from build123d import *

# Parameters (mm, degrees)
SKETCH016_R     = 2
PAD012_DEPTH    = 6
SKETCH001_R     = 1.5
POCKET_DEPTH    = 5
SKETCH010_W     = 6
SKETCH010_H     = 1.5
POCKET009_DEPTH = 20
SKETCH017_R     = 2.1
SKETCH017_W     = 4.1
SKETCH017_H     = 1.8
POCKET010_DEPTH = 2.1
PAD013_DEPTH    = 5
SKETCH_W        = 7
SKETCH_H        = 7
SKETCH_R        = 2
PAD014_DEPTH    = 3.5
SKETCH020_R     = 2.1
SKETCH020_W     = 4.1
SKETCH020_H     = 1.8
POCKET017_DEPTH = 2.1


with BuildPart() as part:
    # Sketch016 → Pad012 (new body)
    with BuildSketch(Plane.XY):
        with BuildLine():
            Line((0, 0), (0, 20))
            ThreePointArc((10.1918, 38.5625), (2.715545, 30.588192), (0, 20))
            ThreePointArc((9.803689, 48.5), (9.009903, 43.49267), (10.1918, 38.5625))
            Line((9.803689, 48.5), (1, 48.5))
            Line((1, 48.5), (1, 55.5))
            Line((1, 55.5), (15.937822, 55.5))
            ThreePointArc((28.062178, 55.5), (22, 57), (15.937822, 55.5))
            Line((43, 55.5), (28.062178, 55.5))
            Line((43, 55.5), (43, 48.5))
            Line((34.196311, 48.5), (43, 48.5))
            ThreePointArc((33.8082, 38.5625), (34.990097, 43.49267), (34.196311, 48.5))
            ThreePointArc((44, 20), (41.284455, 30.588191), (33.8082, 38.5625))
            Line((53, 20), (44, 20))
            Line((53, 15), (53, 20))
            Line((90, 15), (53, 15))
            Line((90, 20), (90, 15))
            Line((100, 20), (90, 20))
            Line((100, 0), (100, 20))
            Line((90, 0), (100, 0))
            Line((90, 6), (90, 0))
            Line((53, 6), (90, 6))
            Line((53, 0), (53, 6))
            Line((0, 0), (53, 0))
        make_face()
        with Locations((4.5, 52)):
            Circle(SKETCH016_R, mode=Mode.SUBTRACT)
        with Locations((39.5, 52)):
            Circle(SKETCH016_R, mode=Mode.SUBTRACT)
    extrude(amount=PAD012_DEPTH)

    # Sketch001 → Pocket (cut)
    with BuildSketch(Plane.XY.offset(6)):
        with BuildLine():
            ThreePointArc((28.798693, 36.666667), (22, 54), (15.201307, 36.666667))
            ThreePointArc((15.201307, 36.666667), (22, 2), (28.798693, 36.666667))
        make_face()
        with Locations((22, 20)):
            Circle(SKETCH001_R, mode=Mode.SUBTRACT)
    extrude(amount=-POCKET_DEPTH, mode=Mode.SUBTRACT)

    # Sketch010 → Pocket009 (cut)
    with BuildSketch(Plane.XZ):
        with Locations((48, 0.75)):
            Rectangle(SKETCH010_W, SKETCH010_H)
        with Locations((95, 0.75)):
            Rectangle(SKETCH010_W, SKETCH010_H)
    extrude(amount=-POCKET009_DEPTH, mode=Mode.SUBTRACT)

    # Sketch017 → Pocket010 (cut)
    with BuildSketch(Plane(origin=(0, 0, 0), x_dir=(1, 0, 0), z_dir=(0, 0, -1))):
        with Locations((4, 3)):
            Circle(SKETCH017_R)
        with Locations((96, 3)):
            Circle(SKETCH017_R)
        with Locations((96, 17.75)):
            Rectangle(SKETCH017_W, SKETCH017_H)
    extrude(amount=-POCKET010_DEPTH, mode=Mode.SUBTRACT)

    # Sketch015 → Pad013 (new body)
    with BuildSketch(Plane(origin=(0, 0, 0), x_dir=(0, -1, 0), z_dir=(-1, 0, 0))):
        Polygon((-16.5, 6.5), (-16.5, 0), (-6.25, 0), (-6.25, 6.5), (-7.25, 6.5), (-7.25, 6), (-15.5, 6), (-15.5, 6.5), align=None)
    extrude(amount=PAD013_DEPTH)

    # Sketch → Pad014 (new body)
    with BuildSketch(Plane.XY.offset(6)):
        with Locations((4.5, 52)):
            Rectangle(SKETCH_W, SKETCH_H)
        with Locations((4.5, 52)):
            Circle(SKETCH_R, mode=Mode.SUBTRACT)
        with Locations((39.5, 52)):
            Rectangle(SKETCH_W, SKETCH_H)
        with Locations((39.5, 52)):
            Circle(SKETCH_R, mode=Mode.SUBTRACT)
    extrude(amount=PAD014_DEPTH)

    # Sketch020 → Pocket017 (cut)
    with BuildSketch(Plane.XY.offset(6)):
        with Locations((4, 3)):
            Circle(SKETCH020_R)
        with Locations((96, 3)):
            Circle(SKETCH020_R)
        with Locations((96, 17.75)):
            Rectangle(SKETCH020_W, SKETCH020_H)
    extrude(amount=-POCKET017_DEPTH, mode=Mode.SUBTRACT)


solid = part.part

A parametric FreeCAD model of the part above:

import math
import FreeCAD as App
import Part
import Sketcher

V = App.Vector
Q = App.Units.Quantity

doc = App.newDocument("Part")
body = doc.addObject("PartDesign::Body", "Body")

# Sketch on XY plane
sketch1 = doc.addObject("Sketcher::SketchObject", "Sketch")
body.addObject(sketch1)
sketch1.AttachmentSupport = (doc.XY_Plane, [""])
sketch1.MapMode = "FlatFace"
sketch1.addGeometry([
    Part.LineSegment(V(0, 20, 0), V(0, 0, 0)),  # 0
    Part.LineSegment(V(0, 0, 0), V(53, 0, 0)),  # 1
    Part.LineSegment(V(53, 0, 0), V(53, 6, 0)),  # 2
    Part.LineSegment(V(53, 6, 0), V(90, 6, 0)),  # 3
    Part.LineSegment(V(90, 6, 0), V(90, 0, 0)),  # 4
    Part.LineSegment(V(90, 0, 0), V(100, 0, 0)),  # 5
    Part.LineSegment(V(100, 0, 0), V(100, 20, 0)),  # 6
    Part.LineSegment(V(100, 20, 0), V(90, 20, 0)),  # 7
    Part.LineSegment(V(90, 20, 0), V(90, 15, 0)),  # 8
    Part.LineSegment(V(90, 15, 0), V(53, 15, 0)),  # 9
    Part.LineSegment(V(53, 15, 0), V(53, 20, 0)),  # 10
    Part.LineSegment(V(53, 20, 0), V(44, 20, 0)),  # 11
    Part.ArcOfCircle(Part.Circle(V(22, 20, 0), V(0, 0, 1), 22), math.radians(0.000001), math.radians(57.538255)),  # 12
    Part.ArcOfCircle(Part.Circle(V(22.000003, 44, 0), V(0, 0, 1), 12.999997), math.radians(-24.725372), math.radians(20.25225)),  # 13
    Part.LineSegment(V(34.196311, 48.5, 0), V(43, 48.5, 0)),  # 14
    Part.LineSegment(V(43, 48.5, 0), V(43, 55.5, 0)),  # 15
    Part.LineSegment(V(43, 55.5, 0), V(28.062178, 55.5, 0)),  # 16
    Part.ArcOfCircle(Part.Circle(V(22, 43.999999, 0), V(0, 0, 1), 13.000001), math.radians(62.204228), math.radians(117.795772)),  # 17
    Part.LineSegment(V(15.937822, 55.5, 0), V(1, 55.5, 0)),  # 18
    Part.LineSegment(V(1, 55.5, 0), V(1, 48.5, 0)),  # 19
    Part.LineSegment(V(1, 48.5, 0), V(9.803689, 48.5, 0)),  # 20
    Part.ArcOfCircle(Part.Circle(V(21.999997, 44, 0), V(0, 0, 1), 12.999997), math.radians(159.74775), math.radians(204.725372)),  # 21
    Part.ArcOfCircle(Part.Circle(V(21.999997, 20.000001, 0), V(0, 0, 1), 21.999997), math.radians(122.46174), math.radians(180.000004)),  # 22
    Part.Circle(V(39.5, 52, 0), V(0, 0, 1), 2),  # 23
    Part.Circle(V(4.5, 52, 0), V(0, 0, 1), 2),  # 24
], False)
sketch1.addConstraint([
    Sketcher.Constraint("Coincident", 0, 2, 1, 1),
    Sketcher.Constraint("Coincident", 1, 2, 2, 1),
    Sketcher.Constraint("Coincident", 2, 2, 3, 1),
    Sketcher.Constraint("Coincident", 3, 2, 4, 1),
    Sketcher.Constraint("Coincident", 4, 2, 5, 1),
    Sketcher.Constraint("Coincident", 5, 2, 6, 1),
    Sketcher.Constraint("Coincident", 6, 2, 7, 1),
    Sketcher.Constraint("Coincident", 7, 2, 8, 1),
    Sketcher.Constraint("Coincident", 8, 2, 9, 1),
    Sketcher.Constraint("Coincident", 9, 2, 10, 1),
    Sketcher.Constraint("Coincident", 10, 2, 11, 1),
    Sketcher.Constraint("Coincident", 11, 2, 12, 1),
    Sketcher.Constraint("Coincident", 12, 2, 13, 1),
    Sketcher.Constraint("Coincident", 13, 2, 14, 1),
    Sketcher.Constraint("Coincident", 14, 2, 15, 1),
    Sketcher.Constraint("Coincident", 15, 2, 16, 1),
    Sketcher.Constraint("Coincident", 16, 2, 17, 1),
    Sketcher.Constraint("Coincident", 17, 2, 18, 1),
    Sketcher.Constraint("Coincident", 18, 2, 19, 1),
    Sketcher.Constraint("Coincident", 19, 2, 20, 1),
    Sketcher.Constraint("Coincident", 20, 2, 21, 1),
    Sketcher.Constraint("Coincident", 21, 2, 22, 1),
    Sketcher.Constraint("Tangent", 22, 2, 0, 1),
    Sketcher.Constraint("Vertical", 0),
    Sketcher.Constraint("Horizontal", 1),
    Sketcher.Constraint("Vertical", 2),
    Sketcher.Constraint("Horizontal", 3),
    Sketcher.Constraint("Vertical", 4),
    Sketcher.Constraint("Horizontal", 5),
    Sketcher.Constraint("Vertical", 6),
    Sketcher.Constraint("Horizontal", 7),
    Sketcher.Constraint("Vertical", 8),
    Sketcher.Constraint("Horizontal", 9),
    Sketcher.Constraint("Vertical", 10),
    Sketcher.Constraint("Horizontal", 11),
    Sketcher.Constraint("Horizontal", 14),
    Sketcher.Constraint("Vertical", 15),
    Sketcher.Constraint("Horizontal", 16),
    Sketcher.Constraint("Horizontal", 18),
    Sketcher.Constraint("Vertical", 19),
    Sketcher.Constraint("Horizontal", 20),
    Sketcher.Constraint("Coincident", 0, 2, -1, 1),
    Sketcher.Constraint("Coincident", 17, 3, 13, 3),
    Sketcher.Constraint("Coincident", 21, 3, 13, 3),
    Sketcher.Constraint("Coincident", 22, 3, 12, 3),
    Sketcher.Constraint("Equal", 13, 21),
    Sketcher.Constraint("Equal", 23, 24),
    Sketcher.Constraint("PointOnObject", 4, 2, -1),
    Sketcher.Constraint("Horizontal", 23, 3, 24, 3),
    Sketcher.Constraint("Horizontal", 22, 3, 6, 2),
    Sketcher.Constraint("Horizontal", 7, 2, 10, 2),
    Sketcher.Constraint("Horizontal", 16, 2, 17, 2),
    Sketcher.Constraint("Horizontal", 14, 2, 19, 2),
    Sketcher.Constraint("Horizontal", 12, 2, 21, 2),
    Sketcher.Constraint("Vertical", 12, 3, 17, 3),
    Sketcher.Constraint("Vertical", 4, 2, 7, 2),
    Sketcher.Constraint("Vertical", 2, 2, 9, 2),
    Sketcher.Constraint("Equal", 16, 18),
    Sketcher.Constraint("Diameter", 23, Q("4 mm")),
    Sketcher.Constraint("Radius", 12, Q("22 mm")),
    Sketcher.Constraint("Radius", 17, Q("13.000001 mm")),
    Sketcher.Constraint("DistanceX", 1, 1, 1, 2, Q("53 mm")),
    Sketcher.Constraint("DistanceX", 3, 1, 3, 2, Q("37 mm")),
    Sketcher.Constraint("DistanceX", 5, 1, 5, 2, Q("10 mm")),
    Sketcher.Constraint("DistanceY", 0, 2, 0, 1, Q("20 mm")),
    Sketcher.Constraint("DistanceY", 2, 1, 2, 2, Q("6 mm")),
    Sketcher.Constraint("DistanceY", 8, 2, 8, 1, Q("5 mm")),
    Sketcher.Constraint("DistanceY", 15, 1, 15, 2, Q("7 mm")),
    Sketcher.Constraint("DistanceY", -1, 1, 13, 3, Q("44 mm")),
    Sketcher.Constraint("DistanceY", -1, 1, 23, 3, Q("52 mm")),
    Sketcher.Constraint("DistanceX", -1, 1, 14, 2, Q("43 mm")),
    Sketcher.Constraint("DistanceX", 24, 3, 23, 3, Q("35 mm")),
    Sketcher.Constraint("DistanceX", -1, 1, 23, 3, Q("39.5 mm")),
    Sketcher.Constraint("DistanceY", -1, 1, 13, 2, Q("48.5 mm")),
    Sketcher.Constraint("Radius", 13, Q("12.999997 mm")),
])
pad1 = doc.addObject("PartDesign::Pad", "Pad")
body.addObject(pad1)
pad1.Profile = sketch1
pad1.Length = 6

# Sketch on XY plane
sketch2 = doc.addObject("Sketcher::SketchObject", "Sketch001")
body.addObject(sketch2)
sketch2.AttachmentSupport = (doc.XY_Plane, [""])
sketch2.MapMode = "FlatFace"
sketch2.AttachmentOffset = App.Placement(V(0, 0, 6), App.Rotation())
sketch2.addGeometry([
    Part.ArcOfCircle(Part.Circle(V(22, 44, 0), V(0, 0, 1), 10), math.radians(-47.166569), math.radians(227.166569)),
    Part.ArcOfCircle(Part.Circle(V(22, 20, 0), V(0, 0, 1), 18), math.radians(112.191607), math.radians(427.808393)),
    Part.Circle(V(22, 20, 0), V(0, 0, 1), 1.5),
], False)
sketch2.addConstraint([
    Sketcher.Constraint("Coincident", 0, 1, 1, 2),
    Sketcher.Constraint("Coincident", 1, 1, 0, 2),
    Sketcher.Constraint("Coincident", 2, 3, 1, 3),
    Sketcher.Constraint("Horizontal", 0, 1, 1, 1),
    Sketcher.Constraint("Diameter", 2, Q("3 mm")),
    Sketcher.Constraint("Radius", 0, Q("10 mm")),
    Sketcher.Constraint("Radius", 1, Q("18 mm")),
    Sketcher.Constraint("DistanceX", -1, 1, 0, 3, Q("22 mm")),
    Sketcher.Constraint("DistanceY", -1, 1, 0, 3, Q("44 mm")),
    Sketcher.Constraint("DistanceY", -1, 1, 1, 3, Q("20 mm")),
])
pocket1 = doc.addObject("PartDesign::Pocket", "Pocket")
body.addObject(pocket1)
pocket1.Profile = sketch2
pocket1.Length = 5

# Sketch on XZ plane
sketch3 = doc.addObject("Sketcher::SketchObject", "Sketch002")
body.addObject(sketch3)
sketch3.AttachmentSupport = (doc.XZ_Plane, [""])
sketch3.MapMode = "FlatFace"
sketch3.addGeometry([
    Part.LineSegment(V(45, 1.5, 0), V(45, 0, 0)),  # 0
    Part.LineSegment(V(45, 0, 0), V(51, 0, 0)),  # 1
    Part.LineSegment(V(51, 0, 0), V(51, 1.5, 0)),  # 2
    Part.LineSegment(V(51, 1.5, 0), V(45, 1.5, 0)),  # 3
    Part.LineSegment(V(92, 1.5, 0), V(92, 0, 0)),  # 4
    Part.LineSegment(V(92, 0, 0), V(98, 0, 0)),  # 5
    Part.LineSegment(V(98, 0, 0), V(98, 1.5, 0)),  # 6
    Part.LineSegment(V(98, 1.5, 0), V(92, 1.5, 0)),  # 7
], False)
sketch3.addConstraint([
    Sketcher.Constraint("Coincident", 0, 2, 1, 1),
    Sketcher.Constraint("Coincident", 1, 2, 2, 1),
    Sketcher.Constraint("Coincident", 2, 2, 3, 1),
    Sketcher.Constraint("Coincident", 3, 2, 0, 1),
    Sketcher.Constraint("Coincident", 4, 2, 5, 1),
    Sketcher.Constraint("Coincident", 5, 2, 6, 1),
    Sketcher.Constraint("Coincident", 6, 2, 7, 1),
    Sketcher.Constraint("Coincident", 7, 2, 4, 1),
    Sketcher.Constraint("Vertical", 0),
    Sketcher.Constraint("Horizontal", 1),
    Sketcher.Constraint("Vertical", 2),
    Sketcher.Constraint("Horizontal", 3),
    Sketcher.Constraint("Vertical", 4),
    Sketcher.Constraint("Horizontal", 5),
    Sketcher.Constraint("Vertical", 6),
    Sketcher.Constraint("Horizontal", 7),
    Sketcher.Constraint("PointOnObject", 0, 2, -1),
    Sketcher.Constraint("PointOnObject", 4, 2, -1),
    Sketcher.Constraint("Horizontal", 3, 2, 6, 2),
    Sketcher.Constraint("Equal", 3, 5),
    Sketcher.Constraint("DistanceX", 1, 1, 1, 2, Q("6 mm")),
    Sketcher.Constraint("DistanceY", 0, 2, 0, 1, Q("1.5 mm")),
    Sketcher.Constraint("DistanceX", -1, 1, 0, 2, Q("45 mm")),
    Sketcher.Constraint("DistanceX", -1, 1, 4, 2, Q("92 mm")),
])
pocket2 = doc.addObject("PartDesign::Pocket", "Pocket001")
body.addObject(pocket2)
pocket2.Profile = sketch3
pocket2.Length = 20

# Sketch on XY plane
sketch4 = doc.addObject("Sketcher::SketchObject", "Sketch003")
body.addObject(sketch4)
sketch4.AttachmentSupport = (doc.XY_Plane, [""])
sketch4.MapMode = "FlatFace"
sketch4.addGeometry([
    Part.Circle(V(4, -3, 0), V(0, 0, 1), 2.1),  # 0
    Part.Circle(V(96, -3, 0), V(0, 0, 1), 2.1),  # 1
    Part.LineSegment(V(93.95, -18.65, 0), V(93.95, -16.85, 0)),  # 2
    Part.LineSegment(V(93.95, -16.85, 0), V(98.05, -16.85, 0)),  # 3
    Part.LineSegment(V(98.05, -16.85, 0), V(98.05, -18.65, 0)),  # 4
    Part.LineSegment(V(98.05, -18.65, 0), V(93.95, -18.65, 0)),  # 5
], False)
sketch4.addConstraint([
    Sketcher.Constraint("Coincident", 2, 2, 3, 1),
    Sketcher.Constraint("Coincident", 3, 2, 4, 1),
    Sketcher.Constraint("Coincident", 4, 2, 5, 1),
    Sketcher.Constraint("Coincident", 5, 2, 2, 1),
    Sketcher.Constraint("Vertical", 2),
    Sketcher.Constraint("Horizontal", 3),
    Sketcher.Constraint("Vertical", 4),
    Sketcher.Constraint("Horizontal", 5),
    Sketcher.Constraint("Equal", 0, 1),
    Sketcher.Constraint("Horizontal", 0, 3, 1, 3),
    Sketcher.Constraint("Diameter", 0, Q("4.2 mm")),
    Sketcher.Constraint("DistanceX", 3, 1, 3, 2, Q("4.1 mm")),
    Sketcher.Constraint("DistanceY", 2, 1, 2, 2, Q("1.8 mm")),
    Sketcher.Constraint("DistanceX", -1, 1, 0, 3, Q("4 mm")),
    Sketcher.Constraint("DistanceY", 0, 3, -1, 1, Q("3 mm")),
    Sketcher.Constraint("DistanceX", -1, 1, 1, 3, Q("96 mm")),
    Sketcher.Constraint("DistanceX", -1, 1, 2, 2, Q("93.95 mm")),
    Sketcher.Constraint("DistanceY", 2, 2, -1, 1, Q("16.85 mm")),
])
pocket3 = doc.addObject("PartDesign::Pocket", "Pocket002")
body.addObject(pocket3)
pocket3.Profile = sketch4
pocket3.Length = 2.1
pocket3.Reversed = True

# Sketch on YZ plane
sketch5 = doc.addObject("Sketcher::SketchObject", "Sketch004")
body.addObject(sketch5)
sketch5.AttachmentSupport = (doc.YZ_Plane, [""])
sketch5.MapMode = "FlatFace"
sketch5.addGeometry([
    Part.LineSegment(V(16.5, 6.5, 0), V(16.5, 0, 0)),  # 0
    Part.LineSegment(V(16.5, 0, 0), V(6.25, 0, 0)),  # 1
    Part.LineSegment(V(6.25, 0, 0), V(6.25, 6.5, 0)),  # 2
    Part.LineSegment(V(6.25, 6.5, 0), V(7.25, 6.5, 0)),  # 3
    Part.LineSegment(V(7.25, 6.5, 0), V(7.25, 6, 0)),  # 4
    Part.LineSegment(V(7.25, 6, 0), V(15.5, 6, 0)),  # 5
    Part.LineSegment(V(15.5, 6, 0), V(15.5, 6.5, 0)),  # 6
    Part.LineSegment(V(15.5, 6.5, 0), V(16.5, 6.5, 0)),  # 7
], False)
sketch5.addConstraint([
    Sketcher.Constraint("Coincident", 0, 2, 1, 1),
    Sketcher.Constraint("Coincident", 1, 2, 2, 1),
    Sketcher.Constraint("Coincident", 2, 2, 3, 1),
    Sketcher.Constraint("Coincident", 3, 2, 4, 1),
    Sketcher.Constraint("Coincident", 4, 2, 5, 1),
    Sketcher.Constraint("Coincident", 5, 2, 6, 1),
    Sketcher.Constraint("Coincident", 6, 2, 7, 1),
    Sketcher.Constraint("Coincident", 7, 2, 0, 1),
    Sketcher.Constraint("Vertical", 0),
    Sketcher.Constraint("Horizontal", 1),
    Sketcher.Constraint("Vertical", 2),
    Sketcher.Constraint("Horizontal", 3),
    Sketcher.Constraint("Vertical", 4),
    Sketcher.Constraint("Horizontal", 5),
    Sketcher.Constraint("Vertical", 6),
    Sketcher.Constraint("Horizontal", 7),
    Sketcher.Constraint("PointOnObject", 0, 2, -1),
    Sketcher.Constraint("Horizontal", 3, 2, 6, 2),
    Sketcher.Constraint("Equal", 3, 7),
    Sketcher.Constraint("DistanceX", 3, 1, 3, 2, Q("1 mm")),
    Sketcher.Constraint("DistanceY", 0, 2, 0, 1, Q("6.5 mm")),
    Sketcher.Constraint("DistanceY", 4, 2, 4, 1, Q("0.5 mm")),
    Sketcher.Constraint("DistanceX", 1, 2, 1, 1, Q("10.25 mm")),
    Sketcher.Constraint("DistanceX", -1, 1, 0, 2, Q("16.5 mm")),
])
pad2 = doc.addObject("PartDesign::Pad", "Pad001")
body.addObject(pad2)
pad2.Profile = sketch5
pad2.Length = 5
pad2.Reversed = True

# Sketch on XY plane
sketch6 = doc.addObject("Sketcher::SketchObject", "Sketch005")
body.addObject(sketch6)
sketch6.AttachmentSupport = (doc.XY_Plane, [""])
sketch6.MapMode = "FlatFace"
sketch6.AttachmentOffset = App.Placement(V(0, 0, 6), App.Rotation())
sketch6.addGeometry([
    Part.LineSegment(V(1, 55.5, 0), V(1, 48.5, 0)),  # 0
    Part.LineSegment(V(1, 48.5, 0), V(8, 48.5, 0)),  # 1
    Part.LineSegment(V(8, 48.5, 0), V(8, 55.5, 0)),  # 2
    Part.LineSegment(V(8, 55.5, 0), V(1, 55.5, 0)),  # 3
    Part.Circle(V(4.5, 52, 0), V(0, 0, 1), 2),  # 4
    Part.LineSegment(V(36, 55.5, 0), V(36, 48.5, 0)),  # 5
    Part.LineSegment(V(36, 48.5, 0), V(43, 48.5, 0)),  # 6
    Part.LineSegment(V(43, 48.5, 0), V(43, 55.5, 0)),  # 7
    Part.LineSegment(V(43, 55.5, 0), V(36, 55.5, 0)),  # 8
    Part.Circle(V(39.5, 52, 0), V(0, 0, 1), 2),  # 9
], False)
sketch6.addConstraint([
    Sketcher.Constraint("Coincident", 0, 2, 1, 1),
    Sketcher.Constraint("Coincident", 1, 2, 2, 1),
    Sketcher.Constraint("Coincident", 2, 2, 3, 1),
    Sketcher.Constraint("Coincident", 3, 2, 0, 1),
    Sketcher.Constraint("Coincident", 5, 2, 6, 1),
    Sketcher.Constraint("Coincident", 6, 2, 7, 1),
    Sketcher.Constraint("Coincident", 7, 2, 8, 1),
    Sketcher.Constraint("Coincident", 8, 2, 5, 1),
    Sketcher.Constraint("Vertical", 0),
    Sketcher.Constraint("Horizontal", 1),
    Sketcher.Constraint("Vertical", 2),
    Sketcher.Constraint("Horizontal", 3),
    Sketcher.Constraint("Vertical", 5),
    Sketcher.Constraint("Horizontal", 6),
    Sketcher.Constraint("Vertical", 7),
    Sketcher.Constraint("Horizontal", 8),
    Sketcher.Constraint("Equal", 4, 9),
    Sketcher.Constraint("Horizontal", 4, 3, 9, 3),
    Sketcher.Constraint("Horizontal", 1, 2, 5, 2),
    Sketcher.Constraint("Horizontal", 3, 2, 7, 2),
    Sketcher.Constraint("Equal", 3, 6),
    Sketcher.Constraint("Equal", 8, 0),
    Sketcher.Constraint("Diameter", 4, Q("4 mm")),
    Sketcher.Constraint("DistanceX", 1, 1, 1, 2, Q("7 mm")),
    Sketcher.Constraint("DistanceY", -1, 1, 4, 3, Q("52 mm")),
    Sketcher.Constraint("DistanceX", -1, 1, 0, 2, Q("1 mm")),
    Sketcher.Constraint("DistanceX", -1, 1, 5, 2, Q("36 mm")),
    Sketcher.Constraint("DistanceX", 4, 3, 9, 3, Q("35 mm")),
    Sketcher.Constraint("DistanceX", -1, 1, 4, 3, Q("4.5 mm")),
    Sketcher.Constraint("DistanceY", -1, 1, 0, 2, Q("48.5 mm")),
])
pad3 = doc.addObject("PartDesign::Pad", "Pad002")
body.addObject(pad3)
pad3.Profile = sketch6
pad3.Length = 3.5

# Sketch on XY plane
sketch7 = doc.addObject("Sketcher::SketchObject", "Sketch006")
body.addObject(sketch7)
sketch7.AttachmentSupport = (doc.XY_Plane, [""])
sketch7.MapMode = "FlatFace"
sketch7.AttachmentOffset = App.Placement(V(0, 0, 6), App.Rotation())
sketch7.addGeometry([
    Part.Circle(V(4, 3, 0), V(0, 0, 1), 2.1),  # 0
    Part.Circle(V(96, 3, 0), V(0, 0, 1), 2.1),  # 1
    Part.LineSegment(V(93.95, 18.65, 0), V(93.95, 16.85, 0)),  # 2
    Part.LineSegment(V(93.95, 16.85, 0), V(98.05, 16.85, 0)),  # 3
    Part.LineSegment(V(98.05, 16.85, 0), V(98.05, 18.65, 0)),  # 4
    Part.LineSegment(V(98.05, 18.65, 0), V(93.95, 18.65, 0)),  # 5
], False)
sketch7.addConstraint([
    Sketcher.Constraint("Coincident", 2, 2, 3, 1),
    Sketcher.Constraint("Coincident", 3, 2, 4, 1),
    Sketcher.Constraint("Coincident", 4, 2, 5, 1),
    Sketcher.Constraint("Coincident", 5, 2, 2, 1),
    Sketcher.Constraint("Vertical", 2),
    Sketcher.Constraint("Horizontal", 3),
    Sketcher.Constraint("Vertical", 4),
    Sketcher.Constraint("Horizontal", 5),
    Sketcher.Constraint("Equal", 0, 1),
    Sketcher.Constraint("Horizontal", 0, 3, 1, 3),
    Sketcher.Constraint("Diameter", 0, Q("4.2 mm")),
    Sketcher.Constraint("DistanceX", 3, 1, 3, 2, Q("4.1 mm")),
    Sketcher.Constraint("DistanceY", 2, 2, 2, 1, Q("1.8 mm")),
    Sketcher.Constraint("DistanceX", -1, 1, 0, 3, Q("4 mm")),
    Sketcher.Constraint("DistanceY", -1, 1, 0, 3, Q("3 mm")),
    Sketcher.Constraint("DistanceX", -1, 1, 1, 3, Q("96 mm")),
    Sketcher.Constraint("DistanceX", -1, 1, 2, 2, Q("93.95 mm")),
    Sketcher.Constraint("DistanceY", -1, 1, 2, 2, Q("16.85 mm")),
])
pocket4 = doc.addObject("PartDesign::Pocket", "Pocket003")
body.addObject(pocket4)
pocket4.Profile = sketch7
pocket4.Length = 2.1

doc.recompute()
